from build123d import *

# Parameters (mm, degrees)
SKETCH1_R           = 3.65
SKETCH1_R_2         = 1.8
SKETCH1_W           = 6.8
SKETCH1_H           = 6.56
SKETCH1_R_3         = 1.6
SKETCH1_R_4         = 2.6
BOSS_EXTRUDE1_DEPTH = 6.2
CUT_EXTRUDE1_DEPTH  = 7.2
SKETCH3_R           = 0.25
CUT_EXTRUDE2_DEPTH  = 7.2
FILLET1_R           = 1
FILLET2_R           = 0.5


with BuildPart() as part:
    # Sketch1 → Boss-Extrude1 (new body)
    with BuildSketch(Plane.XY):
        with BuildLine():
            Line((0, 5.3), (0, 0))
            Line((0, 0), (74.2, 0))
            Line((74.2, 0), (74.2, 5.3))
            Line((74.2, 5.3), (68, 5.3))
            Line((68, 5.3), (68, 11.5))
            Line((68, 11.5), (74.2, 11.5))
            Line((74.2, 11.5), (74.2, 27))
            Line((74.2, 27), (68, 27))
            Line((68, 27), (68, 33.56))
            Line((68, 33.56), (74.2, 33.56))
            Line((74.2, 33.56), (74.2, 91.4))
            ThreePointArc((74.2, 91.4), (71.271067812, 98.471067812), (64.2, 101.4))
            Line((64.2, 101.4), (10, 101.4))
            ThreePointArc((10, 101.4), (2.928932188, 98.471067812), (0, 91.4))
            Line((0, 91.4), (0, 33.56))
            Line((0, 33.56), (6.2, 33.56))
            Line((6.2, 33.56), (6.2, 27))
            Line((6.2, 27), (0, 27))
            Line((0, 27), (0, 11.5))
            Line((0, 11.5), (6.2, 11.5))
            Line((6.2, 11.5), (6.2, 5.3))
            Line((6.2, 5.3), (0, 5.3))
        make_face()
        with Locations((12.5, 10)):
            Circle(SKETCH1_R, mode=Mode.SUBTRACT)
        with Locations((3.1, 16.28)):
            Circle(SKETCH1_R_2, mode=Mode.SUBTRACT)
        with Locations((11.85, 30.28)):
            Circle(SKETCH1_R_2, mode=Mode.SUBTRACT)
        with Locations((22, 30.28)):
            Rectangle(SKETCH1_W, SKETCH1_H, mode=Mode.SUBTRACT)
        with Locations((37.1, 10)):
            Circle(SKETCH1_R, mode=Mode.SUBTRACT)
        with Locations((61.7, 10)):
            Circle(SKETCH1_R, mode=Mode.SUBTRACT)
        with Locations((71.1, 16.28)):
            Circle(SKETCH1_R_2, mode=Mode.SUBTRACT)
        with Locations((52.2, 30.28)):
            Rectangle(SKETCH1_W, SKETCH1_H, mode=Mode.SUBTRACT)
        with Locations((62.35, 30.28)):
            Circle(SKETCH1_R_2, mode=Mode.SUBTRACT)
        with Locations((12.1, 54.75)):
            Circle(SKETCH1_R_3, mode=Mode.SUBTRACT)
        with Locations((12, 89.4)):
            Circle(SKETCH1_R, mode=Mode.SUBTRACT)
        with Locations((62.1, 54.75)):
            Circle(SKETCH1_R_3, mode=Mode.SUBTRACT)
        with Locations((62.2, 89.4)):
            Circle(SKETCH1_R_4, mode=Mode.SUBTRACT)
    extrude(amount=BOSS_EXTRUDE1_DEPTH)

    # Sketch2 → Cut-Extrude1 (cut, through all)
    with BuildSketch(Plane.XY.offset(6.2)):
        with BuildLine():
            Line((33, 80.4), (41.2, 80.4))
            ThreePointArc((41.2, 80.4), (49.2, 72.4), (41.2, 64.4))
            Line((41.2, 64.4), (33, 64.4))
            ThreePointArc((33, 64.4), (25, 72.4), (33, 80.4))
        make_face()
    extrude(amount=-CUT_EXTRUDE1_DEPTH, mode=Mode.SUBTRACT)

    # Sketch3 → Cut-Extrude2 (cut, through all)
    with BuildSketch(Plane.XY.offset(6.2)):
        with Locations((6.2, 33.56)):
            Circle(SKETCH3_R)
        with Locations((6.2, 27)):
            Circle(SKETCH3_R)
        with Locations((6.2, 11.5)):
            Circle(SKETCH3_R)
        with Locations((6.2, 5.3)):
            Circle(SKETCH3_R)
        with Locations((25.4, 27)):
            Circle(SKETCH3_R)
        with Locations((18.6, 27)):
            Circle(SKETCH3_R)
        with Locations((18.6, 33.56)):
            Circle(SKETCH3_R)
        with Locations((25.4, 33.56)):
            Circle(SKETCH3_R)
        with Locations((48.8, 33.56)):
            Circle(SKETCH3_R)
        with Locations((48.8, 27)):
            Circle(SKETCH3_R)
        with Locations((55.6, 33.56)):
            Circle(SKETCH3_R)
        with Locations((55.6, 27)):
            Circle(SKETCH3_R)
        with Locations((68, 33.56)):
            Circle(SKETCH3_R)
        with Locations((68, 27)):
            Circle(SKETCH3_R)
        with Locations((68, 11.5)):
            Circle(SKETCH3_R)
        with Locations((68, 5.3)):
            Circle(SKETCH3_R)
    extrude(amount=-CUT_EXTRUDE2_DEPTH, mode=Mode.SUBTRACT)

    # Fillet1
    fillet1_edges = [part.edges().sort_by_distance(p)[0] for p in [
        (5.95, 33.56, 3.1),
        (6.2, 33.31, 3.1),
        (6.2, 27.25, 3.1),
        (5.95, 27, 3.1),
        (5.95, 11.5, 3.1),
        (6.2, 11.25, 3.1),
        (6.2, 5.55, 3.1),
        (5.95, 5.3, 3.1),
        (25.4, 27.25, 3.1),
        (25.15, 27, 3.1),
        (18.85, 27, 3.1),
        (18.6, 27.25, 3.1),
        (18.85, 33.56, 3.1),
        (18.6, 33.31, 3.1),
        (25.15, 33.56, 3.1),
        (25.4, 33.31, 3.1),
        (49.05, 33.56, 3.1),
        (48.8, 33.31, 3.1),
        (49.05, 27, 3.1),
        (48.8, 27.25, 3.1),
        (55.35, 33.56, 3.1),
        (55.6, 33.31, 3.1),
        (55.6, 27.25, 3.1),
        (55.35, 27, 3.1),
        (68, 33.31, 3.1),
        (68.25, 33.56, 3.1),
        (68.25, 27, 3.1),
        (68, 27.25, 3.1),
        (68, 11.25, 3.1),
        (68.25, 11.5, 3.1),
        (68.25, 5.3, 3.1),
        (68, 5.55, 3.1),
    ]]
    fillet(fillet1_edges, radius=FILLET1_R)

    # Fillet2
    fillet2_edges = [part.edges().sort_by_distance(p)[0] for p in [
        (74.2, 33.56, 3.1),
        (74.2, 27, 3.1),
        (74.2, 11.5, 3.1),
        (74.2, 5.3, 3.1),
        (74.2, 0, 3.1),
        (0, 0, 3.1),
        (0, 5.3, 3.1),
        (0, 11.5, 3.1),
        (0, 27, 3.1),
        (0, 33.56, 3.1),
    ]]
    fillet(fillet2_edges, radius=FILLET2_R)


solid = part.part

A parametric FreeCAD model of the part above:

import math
import FreeCAD as App
import Part
import Sketcher
from FreeCAD import Vector
Q = App.Units.Quantity


def edges_at(feature, points):
    """Names of the edges that pass closest to the given points."""
    edges = feature.Shape.Edges
    near = lambda p: min(range(len(edges)), key=lambda i: edges[i].distToShape(Part.Vertex(*p))[0])
    return sorted({f"Edge{near(p) + 1}" for p in points})


def add_polygon(sketch, points):
    """Adds a closed chain of lines whose ends are joined by coincident constraints."""
    first, n = sketch.GeometryCount, len(points)
    for a, b in zip(points, points[1:] + points[:1]):
        sketch.addGeometry(Part.LineSegment(App.Vector(*a, 0), App.Vector(*b, 0)), False)
    for i in range(n):
        sketch.addConstraint(Sketcher.Constraint("Coincident", first + i, 2, first + (i + 1) % n, 1))

doc = App.newDocument("Part")
body = doc.addObject("PartDesign::Body", "Body")

sketch1 = body.newObject("Sketcher::SketchObject", "Sketch")
sketch1.AttachmentSupport = (doc.getObject("XY_Plane"), [""])
sketch1.MapMode = "FlatFace"
sketch1.addGeometry(Part.LineSegment(Vector(0, 5.3, 0), Vector(0, 0, 0)), False)
sketch1.addGeometry(Part.LineSegment(Vector(0, 0, 0), Vector(74.2, 0, 0)), False)
sketch1.addGeometry(Part.LineSegment(Vector(74.2, 0, 0), Vector(74.2, 5.3, 0)), False)
sketch1.addGeometry(Part.LineSegment(Vector(74.2, 5.3, 0), Vector(68, 5.3, 0)), False)
sketch1.addGeometry(Part.LineSegment(Vector(68, 5.3, 0), Vector(68, 11.5, 0)), False)
sketch1.addGeometry(Part.LineSegment(Vector(68, 11.5, 0), Vector(74.2, 11.5, 0)), False)
sketch1.addGeometry(Part.LineSegment(Vector(74.2, 11.5, 0), Vector(74.2, 27, 0)), False)
sketch1.addGeometry(Part.LineSegment(Vector(74.2, 27, 0), Vector(68, 27, 0)), False)
sketch1.addGeometry(Part.LineSegment(Vector(68, 27, 0), Vector(68, 33.6, 0)), False)
sketch1.addGeometry(Part.LineSegment(Vector(68, 33.6, 0), Vector(74.2, 33.6, 0)), False)
sketch1.addGeometry(Part.LineSegment(Vector(74.2, 33.6, 0), Vector(74.2, 91.4, 0)), False)
sketch1.addGeometry(Part.ArcOfCircle(Part.Circle(Vector(64.2, 91.4, 0), Vector(0, 0, 1), 10), math.radians(0), math.radians(90)), False)
sketch1.addGeometry(Part.LineSegment(Vector(64.2, 101.4, 0), Vector(10, 101.4, 0)), False)
sketch1.addGeometry(Part.ArcOfCircle(Part.Circle(Vector(10, 91.4, 0), Vector(0, 0, 1), 10), math.radians(90), math.radians(180)), False)
sketch1.addGeometry(Part.LineSegment(Vector(0, 91.4, 0), Vector(0, 33.6, 0)), False)
sketch1.addGeometry(Part.LineSegment(Vector(0, 33.6, 0), Vector(6.2, 33.6, 0)), False)
sketch1.addGeometry(Part.LineSegment(Vector(6.2, 33.6, 0), Vector(6.2, 27, 0)), False)
sketch1.addGeometry(Part.LineSegment(Vector(6.2, 27, 0), Vector(0, 27, 0)), False)
sketch1.addGeometry(Part.LineSegment(Vector(0, 27, 0), Vector(0, 11.5, 0)), False)
sketch1.addGeometry(Part.LineSegment(Vector(0, 11.5, 0), Vector(6.2, 11.5, 0)), False)
sketch1.addGeometry(Part.LineSegment(Vector(6.2, 11.5, 0), Vector(6.2, 5.3, 0)), False)
sketch1.addGeometry(Part.LineSegment(Vector(6.2, 5.3, 0), Vector(0, 5.3, 0)), False)
sketch1.addGeometry(Part.Circle(Vector(3.1, 16.3, 0), Vector(0, 0, 1), 1.8), False)
sketch1.addGeometry(Part.Circle(Vector(12.5, 10, 0), Vector(0, 0, 1), 3.6), False)
sketch1.addGeometry(Part.Circle(Vector(11.8, 30.3, 0), Vector(0, 0, 1), 1.8), False)
add_polygon(sketch1, [(25.4, 27), (18.6, 27), (18.6, 33.6), (25.4, 33.6)])
sketch1.addGeometry(Part.Circle(Vector(37.1, 10, 0), Vector(0, 0, 1), 3.6), False)
sketch1.addGeometry(Part.Circle(Vector(61.7, 10, 0), Vector(0, 0, 1), 3.6), False)
sketch1.addGeometry(Part.Circle(Vector(71.1, 16.3, 0), Vector(0, 0, 1), 1.8), False)
add_polygon(sketch1, [(55.6, 27), (48.8, 27), (48.8, 33.6), (55.6, 33.6)])
sketch1.addGeometry(Part.Circle(Vector(62.4, 30.3, 0), Vector(0, 0, 1), 1.8), False)
sketch1.addGeometry(Part.Circle(Vector(12.1, 54.8, 0), Vector(0, 0, 1), 1.6), False)
sketch1.addGeometry(Part.Circle(Vector(12, 89.4, 0), Vector(0, 0, 1), 3.6), False)
sketch1.addGeometry(Part.Circle(Vector(62.1, 54.8, 0), Vector(0, 0, 1), 1.6), False)
sketch1.addGeometry(Part.Circle(Vector(62.2, 89.4, 0), Vector(0, 0, 1), 2.6), False)
sketch1.addConstraint([
    Sketcher.Constraint("Coincident", 0, 2, 1, 1),
    Sketcher.Constraint("Coincident", 1, 2, 2, 1),
    Sketcher.Constraint("Coincident", 2, 2, 3, 1),
    Sketcher.Constraint("Coincident", 3, 2, 4, 1),
    Sketcher.Constraint("Coincident", 4, 2, 5, 1),
    Sketcher.Constraint("Coincident", 5, 2, 6, 1),
    Sketcher.Constraint("Coincident", 6, 2, 7, 1),
    Sketcher.Constraint("Coincident", 7, 2, 8, 1),
    Sketcher.Constraint("Coincident", 8, 2, 9, 1),
    Sketcher.Constraint("Coincident", 9, 2, 10, 1),
    Sketcher.Constraint("Tangent", 10, 2, 11, 1),
    Sketcher.Constraint("Tangent", 11, 2, 12, 1),
    Sketcher.Constraint("Tangent", 12, 2, 13, 1),
    Sketcher.Constraint("Tangent", 13, 2, 14, 1),
    Sketcher.Constraint("Coincident", 14, 2, 15, 1),
    Sketcher.Constraint("Coincident", 15, 2, 16, 1),
    Sketcher.Constraint("Coincident", 16, 2, 17, 1),
    Sketcher.Constraint("Coincident", 17, 2, 18, 1),
    Sketcher.Constraint("Coincident", 18, 2, 19, 1),
    Sketcher.Constraint("Coincident", 19, 2, 20, 1),
    Sketcher.Constraint("Coincident", 20, 2, 21, 1),
    Sketcher.Constraint("Coincident", 21, 2, 0, 1),
    Sketcher.Constraint("Vertical", 0),
    Sketcher.Constraint("Horizontal", 1),
    Sketcher.Constraint("Vertical", 2),
    Sketcher.Constraint("Horizontal", 3),
    Sketcher.Constraint("Vertical", 4),
    Sketcher.Constraint("Horizontal", 5),
    Sketcher.Constraint("Vertical", 6),
    Sketcher.Constraint("Horizontal", 7),
    Sketcher.Constraint("Vertical", 8),
    Sketcher.Constraint("Horizontal", 9),
    Sketcher.Constraint("Vertical", 10),
    Sketcher.Constraint("Horizontal", 12),
    Sketcher.Constraint("Vertical", 14),
    Sketcher.Constraint("Horizontal", 15),
    Sketcher.Constraint("Vertical", 16),
    Sketcher.Constraint("Horizontal", 17),
    Sketcher.Constraint("Vertical", 18),
    Sketcher.Constraint("Horizontal", 19),
    Sketcher.Constraint("Vertical", 20),
    Sketcher.Constraint("Horizontal", 21),
    Sketcher.Constraint("Horizontal", 25),
    Sketcher.Constraint("Vertical", 26),
    Sketcher.Constraint("Horizontal", 27),
    Sketcher.Constraint("Vertical", 28),
    Sketcher.Constraint("Horizontal", 32),
    Sketcher.Constraint("Vertical", 33),
    Sketcher.Constraint("Horizontal", 34),
    Sketcher.Constraint("Vertical", 35),
    Sketcher.Constraint("Coincident", 0, 2, -1, 1),
    Sketcher.Constraint("Equal", 11, 13),
    Sketcher.Constraint("Equal", 22, 24),
    Sketcher.Constraint("Equal", 23, 29),
    Sketcher.Constraint("Equal", 29, 30),
    Sketcher.Constraint("Equal", 24, 31),
    Sketcher.Constraint("Equal", 31, 36),
    Sketcher.Constraint("Equal", 30, 38),
    Sketcher.Constraint("Equal", 37, 39),
    Sketcher.Constraint("PointOnObject", 13, 2, -2),
    Sketcher.Constraint("PointOnObject", 17, 2, -2),
    Sketcher.Constraint("Horizontal", 23, 3, 29, 3),
    Sketcher.Constraint("Horizontal", 29, 3, 30, 3),
    Sketcher.Constraint("Horizontal", 22, 3, 31, 3),
    Sketcher.Constraint("Horizontal", 24, 3, 36, 3),
    Sketcher.Constraint("Horizontal", 37, 3, 39, 3),
    Sketcher.Constraint("Horizontal", 38, 3, 40, 3),
    Sketcher.Constraint("Horizontal", 9, 2, 14, 2),
    Sketcher.Constraint("Horizontal", 7, 2, 16, 2),
    Sketcher.Constraint("Horizontal", 5, 2, 18, 2),
    Sketcher.Constraint("Horizontal", 3, 2, 20, 2),
    Sketcher.Constraint("Horizontal", 17, 2, 25, 2),
    Sketcher.Constraint("Horizontal", 15, 2, 26, 2),
    Sketcher.Constraint("Horizontal", 28, 2, 32, 2),
    Sketcher.Constraint("Horizontal", 27, 2, 33, 2),
    Sketcher.Constraint("Vertical", 2, 2, 5, 2),
    Sketcher.Constraint("Vertical", 4, 2, 7, 2),
    Sketcher.Constraint("Vertical", 6, 2, 9, 2),
    Sketcher.Constraint("Vertical", 16, 2, 19, 2),
    Sketcher.Constraint("Equal", 9, 15),
    Sketcher.Constraint("Equal", 27, 32),
    Sketcher.Constraint("Equal", 21, 4),
    Sketcher.Constraint("Radius", 11, Q("10 mm")),
    Sketcher.Constraint("Diameter", 22, Q("3.6 mm")),
    Sketcher.Constraint("Diameter", 23, Q("7.3 mm")),
    Sketcher.Constraint("Diameter", 37, Q("3.2 mm")),
    Sketcher.Constraint("Diameter", 40, Q("5.2 mm")),
    Sketcher.Constraint("DistanceX", 1, 1, 1, 2, Q("74.2 mm")),
    Sketcher.Constraint("DistanceX", 3, 2, 3, 1, Q("6.2 mm")),
    Sketcher.Constraint("DistanceX", 25, 2, 25, 1, Q("6.8 mm")),
    Sketcher.Constraint("DistanceY", 0, 2, 0, 1, Q("5.3 mm")),
    Sketcher.Constraint("DistanceY", 6, 1, 6, 2, Q("15.5 mm")),
    Sketcher.Constraint("DistanceY", -1, 1, 23, 3, Q("10 mm")),
    Sketcher.Constraint("DistanceX", -1, 1, 38, 3, Q("12 mm")),
    Sketcher.Constraint("DistanceY", 22, 3, 24, 3, Q("14 mm")),
    Sketcher.Constraint("DistanceX", 22, 3, 29, 3, Q("34 mm")),
    Sketcher.Constraint("DistanceX", 29, 3, 31, 3, Q("34 mm")),
    Sketcher.Constraint("DistanceX", 22, 3, 37, 3, Q("9 mm")),
    Sketcher.Constraint("DistanceY", 38, 3, 13, 3, Q("2 mm")),
    Sketcher.Constraint("DistanceX", 39, 3, 31, 3, Q("9 mm")),
    Sketcher.Constraint("DistanceX", 40, 3, 11, 3, Q("2 mm")),
    Sketcher.Constraint("DistanceY", 8, 1, 8, 2, Q("6.56 mm")),
    Sketcher.Constraint("DistanceY", 10, 1, 10, 2, Q("57.84 mm")),
    Sketcher.Constraint("DistanceX", -1, 1, 22, 3, Q("3.1 mm")),
    Sketcher.Constraint("DistanceX", -1, 1, 23, 3, Q("12.5 mm")),
    Sketcher.Constraint("DistanceX", -1, 1, 30, 3, Q("61.7 mm")),
    Sketcher.Constraint("DistanceX", -1, 1, 25, 2, Q("18.6 mm")),
    Sketcher.Constraint("DistanceX", -1, 1, 32, 2, Q("48.8 mm")),
    Sketcher.Constraint("DistanceX", 24, 3, 36, 3, Q("50.5 mm")),
    Sketcher.Constraint("DistanceY", -1, 1, 22, 3, Q("16.28 mm")),
    Sketcher.Constraint("DistanceX", -1, 1, 24, 3, Q("11.85 mm")),
    Sketcher.Constraint("DistanceY", -1, 1, 37, 3, Q("54.75 mm")),
])
pad1 = body.newObject("PartDesign::Pad", "Pad")
pad1.Profile = sketch1
pad1.Length = 6.2

sketch2 = body.newObject("Sketcher::SketchObject", "Sketch001")
sketch2.AttachmentSupport = (doc.getObject("XY_Plane"), [""])
sketch2.MapMode = "FlatFace"
sketch2.AttachmentOffset = App.Placement(Vector(0, 0, 6.2), App.Rotation())
sketch2.addGeometry([
    Part.LineSegment(Vector(41, 80, 0), Vector(33, 80, 0)),
    Part.ArcOfCircle(Part.Circle(Vector(33, 72, 0), Vector(0, 0, 1), 8), math.radians(90), math.radians(270)),
    Part.LineSegment(Vector(33, 64, 0), Vector(41, 64, 0)),
    Part.ArcOfCircle(Part.Circle(Vector(41, 72, 0), Vector(0, 0, 1), 8), math.radians(-90), math.radians(90)),
], False)
sketch2.addConstraint([
    Sketcher.Constraint("Tangent", 0, 2, 1, 1),
    Sketcher.Constraint("Tangent", 1, 2, 2, 1),
    Sketcher.Constraint("Tangent", 2, 2, 3, 1),
    Sketcher.Constraint("Tangent", 3, 2, 0, 1),
    Sketcher.Constraint("Horizontal", 0),
    Sketcher.Constraint("Horizontal", 2),
    Sketcher.Constraint("Radius", 1, Q("8 mm")),
    Sketcher.Constraint("DistanceX", 0, 2, 0, 1, Q("8.2 mm")),
    Sketcher.Constraint("DistanceX", -1, 1, 1, 3, Q("33 mm")),
    Sketcher.Constraint("DistanceY", -1, 1, 1, 3, Q("72.4 mm")),
])
pocket1 = body.newObject("PartDesign::Pocket", "Pocket")
pocket1.Profile = sketch2
pocket1.Type = "ThroughAll"

sketch3 = body.newObject("Sketcher::SketchObject", "Sketch002")
sketch3.AttachmentSupport = (doc.getObject("XY_Plane"), [""])
sketch3.MapMode = "FlatFace"
sketch3.AttachmentOffset = App.Placement(Vector(0, 0, 6.2), App.Rotation())
sketch3.addGeometry([
    Part.Circle(Vector(6.2, 33.56, 0), Vector(0, 0, 1), 0.25),
    Part.Circle(Vector(6.2, 27, 0), Vector(0, 0, 1), 0.25),
    Part.Circle(Vector(6.2, 11.5, 0), Vector(0, 0, 1), 0.25),
    Part.Circle(Vector(6.2, 5.3, 0), Vector(0, 0, 1), 0.25),
    Part.Circle(Vector(25.4, 27, 0), Vector(0, 0, 1), 0.25),
    Part.Circle(Vector(18.6, 27, 0), Vector(0, 0, 1), 0.25),
    Part.Circle(Vector(18.6, 33.56, 0), Vector(0, 0, 1), 0.25),
    Part.Circle(Vector(25.4, 33.56, 0), Vector(0, 0, 1), 0.25),
    Part.Circle(Vector(48.8, 33.56, 0), Vector(0, 0, 1), 0.25),
    Part.Circle(Vector(48.8, 27, 0), Vector(0, 0, 1), 0.25),
    Part.Circle(Vector(55.6, 33.56, 0), Vector(0, 0, 1), 0.25),
    Part.Circle(Vector(55.6, 27, 0), Vector(0, 0, 1), 0.25),
    Part.Circle(Vector(68, 33.56, 0), Vector(0, 0, 1), 0.25),
    Part.Circle(Vector(68, 27, 0), Vector(0, 0, 1), 0.25),
    Part.Circle(Vector(68, 11.5, 0), Vector(0, 0, 1), 0.25),
    Part.Circle(Vector(68, 5.3, 0), Vector(0, 0, 1), 0.25),
], False)
sketch3.addConstraint([
    Sketcher.Constraint("Equal", 0, 1),
    Sketcher.Constraint("Equal", 1, 2),
    Sketcher.Constraint("Equal", 2, 3),
    Sketcher.Constraint("Equal", 3, 4),
    Sketcher.Constraint("Equal", 4, 5),
    Sketcher.Constraint("Equal", 5, 6),
    Sketcher.Constraint("Equal", 6, 7),
    Sketcher.Constraint("Equal", 7, 8),
    Sketcher.Constraint("Equal", 8, 9),
    Sketcher.Constraint("Equal", 9, 10),
    Sketcher.Constraint("Equal", 10, 11),
    Sketcher.Constraint("Equal", 11, 12),
    Sketcher.Constraint("Equal", 12, 13),
    Sketcher.Constraint("Equal", 13, 14),
    Sketcher.Constraint("Equal", 14, 15),
    Sketcher.Constraint("Horizontal", 1, 3, 4, 3),
    Sketcher.Constraint("Horizontal", 4, 3, 5, 3),
    Sketcher.Constraint("Horizontal", 0, 3, 6, 3),
    Sketcher.Constraint("Horizontal", 6, 3, 7, 3),
    Sketcher.Constraint("Horizontal", 7, 3, 8, 3),
    Sketcher.Constraint("Horizontal", 5, 3, 9, 3),
    Sketcher.Constraint("Horizontal", 8, 3, 10, 3),
    Sketcher.Constraint("Horizontal", 9, 3, 11, 3),
    Sketcher.Constraint("Horizontal", 10, 3, 12, 3),
    Sketcher.Constraint("Horizontal", 11, 3, 13, 3),
    Sketcher.Constraint("Horizontal", 2, 3, 14, 3),
    Sketcher.Constraint("Horizontal", 3, 3, 15, 3),
    Sketcher.Constraint("Vertical", 0, 3, 1, 3),
    Sketcher.Constraint("Vertical", 1, 3, 2, 3),
    Sketcher.Constraint("Vertical", 2, 3, 3, 3),
    Sketcher.Constraint("Vertical", 5, 3, 6, 3),
    Sketcher.Constraint("Vertical", 4, 3, 7, 3),
    Sketcher.Constraint("Vertical", 8, 3, 9, 3),
    Sketcher.Constraint("Vertical", 10, 3, 11, 3),
    Sketcher.Constraint("Vertical", 12, 3, 13, 3),
    Sketcher.Constraint("Vertical", 13, 3, 14, 3),
    Sketcher.Constraint("Vertical", 14, 3, 15, 3),
    Sketcher.Constraint("Diameter", 0, Q("0.5 mm")),
    Sketcher.Constraint("DistanceY", -1, 1, 1, 3, Q("27 mm")),
    Sketcher.Constraint("DistanceX", -1, 1, 12, 3, Q("68 mm")),
    Sketcher.Constraint("DistanceX", 6, 3, 10, 3, Q("37 mm")),
    Sketcher.Constraint("DistanceX", -1, 1, 0, 3, Q("6.2 mm")),
    Sketcher.Constraint("DistanceY", -1, 1, 2, 3, Q("11.5 mm")),
    Sketcher.Constraint("DistanceY", -1, 1, 3, 3, Q("5.3 mm")),
    Sketcher.Constraint("DistanceX", -1, 1, 4, 3, Q("25.4 mm")),
    Sketcher.Constraint("DistanceX", -1, 1, 5, 3, Q("18.6 mm")),
    Sketcher.Constraint("DistanceX", -1, 1, 8, 3, Q("48.8 mm")),
    Sketcher.Constraint("DistanceY", -1, 1, 0, 3, Q("33.56 mm")),
])
pocket2 = body.newObject("PartDesign::Pocket", "Pocket001")
pocket2.Profile = sketch3
pocket2.Type = "ThroughAll"
doc.recompute()

fillet = body.newObject("PartDesign::Fillet", "Fillet")
fillet.Base = (pocket2, edges_at(pocket2, [
    (5.95, 33.56, 3.1),
    (6.2, 33.31, 3.1),
    (6.2, 27.25, 3.1),
    (5.95, 27, 3.1),
    (5.95, 11.5, 3.1),
    (6.2, 11.25, 3.1),
    (6.2, 5.55, 3.1),
    (5.95, 5.3, 3.1),
    (25.4, 27.25, 3.1),
    (25.15, 27, 3.1),
    (18.85, 27, 3.1),
    (18.6, 27.25, 3.1),
    (18.85, 33.56, 3.1),
    (18.6, 33.31, 3.1),
    (25.15, 33.56, 3.1),
    (25.4, 33.31, 3.1),
    (49.05, 33.56, 3.1),
    (48.8, 33.31, 3.1),
    (49.05, 27, 3.1),
    (48.8, 27.25, 3.1),
    (55.35, 33.56, 3.1),
    (55.6, 33.31, 3.1),
    (55.6, 27.25, 3.1),
    (55.35, 27, 3.1),
    (68, 33.31, 3.1),
    (68.25, 33.56, 3.1),
    (68.25, 27, 3.1),
    (68, 27.25, 3.1),
    (68, 11.25, 3.1),
    (68.25, 11.5, 3.1),
    (68.25, 5.3, 3.1),
    (68, 5.55, 3.1),
]))
fillet.Radius = 1
doc.recompute()

fillet2 = body.newObject("PartDesign::Fillet", "Fillet001")
fillet2.Base = (fillet, edges_at(fillet, [
    (74.2, 33.56, 3.1),
    (74.2, 27, 3.1),
    (74.2, 11.5, 3.1),
    (74.2, 5.3, 3.1),
    (74.2, 0, 3.1),
    (0, 0, 3.1),
    (0, 5.3, 3.1),
    (0, 11.5, 3.1),
    (0, 27, 3.1),
    (0, 33.56, 3.1),
]))
fillet2.Radius = 0.5

doc.recompute()
